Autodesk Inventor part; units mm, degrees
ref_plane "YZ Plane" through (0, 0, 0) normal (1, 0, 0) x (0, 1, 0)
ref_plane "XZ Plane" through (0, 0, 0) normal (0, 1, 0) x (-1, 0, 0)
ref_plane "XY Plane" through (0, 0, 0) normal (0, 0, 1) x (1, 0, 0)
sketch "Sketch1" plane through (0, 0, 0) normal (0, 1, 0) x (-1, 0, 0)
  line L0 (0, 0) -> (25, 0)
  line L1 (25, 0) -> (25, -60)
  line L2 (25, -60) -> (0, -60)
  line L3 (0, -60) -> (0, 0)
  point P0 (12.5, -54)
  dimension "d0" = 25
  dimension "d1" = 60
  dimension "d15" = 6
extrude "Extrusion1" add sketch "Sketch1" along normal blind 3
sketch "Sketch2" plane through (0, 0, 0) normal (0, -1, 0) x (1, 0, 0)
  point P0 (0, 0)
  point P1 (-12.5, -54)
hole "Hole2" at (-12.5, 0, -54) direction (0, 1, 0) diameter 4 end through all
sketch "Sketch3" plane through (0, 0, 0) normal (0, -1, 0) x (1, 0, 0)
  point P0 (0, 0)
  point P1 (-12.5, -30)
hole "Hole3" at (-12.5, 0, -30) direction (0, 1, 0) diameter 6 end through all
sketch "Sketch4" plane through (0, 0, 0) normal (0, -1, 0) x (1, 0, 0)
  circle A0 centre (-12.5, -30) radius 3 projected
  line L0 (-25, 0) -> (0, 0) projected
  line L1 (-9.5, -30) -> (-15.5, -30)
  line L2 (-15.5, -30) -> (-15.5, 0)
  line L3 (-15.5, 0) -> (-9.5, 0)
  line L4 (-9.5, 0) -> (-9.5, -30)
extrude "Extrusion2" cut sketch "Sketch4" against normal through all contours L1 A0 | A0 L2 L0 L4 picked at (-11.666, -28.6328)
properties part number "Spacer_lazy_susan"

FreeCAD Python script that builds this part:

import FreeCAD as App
import Part
import Sketcher
from FreeCAD import Vector

doc = App.newDocument("Part")
params = doc.addObject("Spreadsheet::Sheet", "Params")
for row, (alias, value) in enumerate([
    ("sketch1_width", "25 mm"),
    ("sketch1_height", "60 mm"),
    ("pad1_length", "3 mm"),
    ("sketch2_diameter", "4 mm"),
    ("hole_diameter", "4 mm"),
    ("sketch3_diameter", "6 mm"),
    ("hole2_diameter", "6 mm"),
    ("sketch4_width", "6 mm"),
    ("sketch4_height", "30 mm"),
], start=1):
    params.set(f"A{row}", alias)
    params.set(f"B{row}", "=" + value)
    params.setAlias(f"B{row}", alias)

body = doc.addObject("PartDesign::Body", "Body")

# Sketch on XZ plane
sketch1 = doc.addObject("Sketcher::SketchObject", "Sketch")
body.addObject(sketch1)
sketch1.AttachmentSupport = (doc.XZ_Plane, [""])
sketch1.MapMode = "FlatFace"
sketch1.addGeometry(Part.LineSegment(Vector(-25, 0, 0), Vector(0, 0, 0)), False)
sketch1.addGeometry(Part.LineSegment(Vector(0, 0, 0), Vector(0, -60, 0)), False)
sketch1.addGeometry(Part.LineSegment(Vector(0, -60, 0), Vector(-25, -60, 0)), False)
sketch1.addGeometry(Part.LineSegment(Vector(-25, -60, 0), Vector(-25, 0, 0)), False)
sketch1.addConstraint(Sketcher.Constraint("Coincident", 0, 2, 1, 1))
sketch1.addConstraint(Sketcher.Constraint("Coincident", 1, 2, 2, 1))
sketch1.addConstraint(Sketcher.Constraint("Coincident", 2, 2, 3, 1))
sketch1.addConstraint(Sketcher.Constraint("Coincident", 3, 2, 0, 1))
sketch1.addConstraint(Sketcher.Constraint("Horizontal", 0))
sketch1.addConstraint(Sketcher.Constraint("Vertical", 1))
sketch1.addConstraint(Sketcher.Constraint("Horizontal", 2))
sketch1.addConstraint(Sketcher.Constraint("Vertical", 3))
sketch1.addConstraint(Sketcher.Constraint("Coincident", 0, 2, -1, 1))
sketch1.addConstraint(Sketcher.Constraint("DistanceX", 0, 1, 0, 2, 25.0))
sketch1.addConstraint(Sketcher.Constraint("DistanceY", 1, 2, 1, 1, 60.0))
sketch1.setExpression("Constraints[9]", "Params.sketch1_width")
sketch1.setExpression("Constraints[10]", "Params.sketch1_height")
pad1 = doc.addObject("PartDesign::Pad", "Pad")
body.addObject(pad1)
pad1.Profile = sketch1
pad1.setExpression("Length", "Params.pad1_length")
pad1.Reversed = True

# Sketch on XZ plane
sketch2 = doc.addObject("Sketcher::SketchObject", "Sketch001")
body.addObject(sketch2)
sketch2.AttachmentSupport = (doc.XZ_Plane, [""])
sketch2.MapMode = "FlatFace"
sketch2.addGeometry(Part.Circle(Vector(-12.5, -54, 0), Vector(0, 0, 1), 2), False)
sketch2.addConstraint(Sketcher.Constraint("Diameter", 0, 4.0))
sketch2.addConstraint(Sketcher.Constraint("DistanceY", 0, 3, -1, 1, 54.0))
sketch2.addConstraint(Sketcher.Constraint("DistanceX", 0, 3, -1, 1, 12.5))
sketch2.setExpression("Constraints[0]", "Params.sketch2_diameter")
doc.recompute()
hole = doc.addObject("PartDesign::Hole", "Hole")
body.addObject(hole)
hole.Profile = sketch2
hole.ThreadType = "None"
hole.setExpression("Diameter", "Params.hole_diameter")
hole.DepthType = "ThroughAll"

# Sketch on XZ plane
sketch3 = doc.addObject("Sketcher::SketchObject", "Sketch002")
body.addObject(sketch3)
sketch3.AttachmentSupport = (doc.XZ_Plane, [""])
sketch3.MapMode = "FlatFace"
sketch3.addGeometry(Part.Circle(Vector(-12.5, -30, 0), Vector(0, 0, 1), 3), False)
sketch3.addConstraint(Sketcher.Constraint("Diameter", 0, 6.0))
sketch3.addConstraint(Sketcher.Constraint("DistanceY", 0, 3, -1, 1, 30.0))
sketch3.addConstraint(Sketcher.Constraint("DistanceX", 0, 3, -1, 1, 12.5))
sketch3.setExpression("Constraints[0]", "Params.sketch3_diameter")
doc.recompute()
hole2 = doc.addObject("PartDesign::Hole", "Hole001")
body.addObject(hole2)
hole2.Profile = sketch3
hole2.ThreadType = "None"
hole2.setExpression("Diameter", "Params.hole2_diameter")
hole2.DepthType = "ThroughAll"

# Sketch on XZ plane
sketch4 = doc.addObject("Sketcher::SketchObject", "Sketch003")
body.addObject(sketch4)
sketch4.AttachmentSupport = (doc.XZ_Plane, [""])
sketch4.MapMode = "FlatFace"
sketch4.addGeometry(Part.LineSegment(Vector(-16, -30, 0), Vector(-10, -30, 0)), False)
sketch4.addGeometry(Part.LineSegment(Vector(-10, -30, 0), Vector(-10, 0, 0)), False)
sketch4.addGeometry(Part.LineSegment(Vector(-10, 0, 0), Vector(-16, 0, 0)), False)
sketch4.addGeometry(Part.LineSegment(Vector(-16, 0, 0), Vector(-16, -30, 0)), False)
sketch4.addConstraint(Sketcher.Constraint("Coincident", 0, 2, 1, 1))
sketch4.addConstraint(Sketcher.Constraint("Coincident", 1, 2, 2, 1))
sketch4.addConstraint(Sketcher.Constraint("Coincident", 2, 2, 3, 1))
sketch4.addConstraint(Sketcher.Constraint("Coincident", 3, 2, 0, 1))
sketch4.addConstraint(Sketcher.Constraint("Horizontal", 0))
sketch4.addConstraint(Sketcher.Constraint("Vertical", 1))
sketch4.addConstraint(Sketcher.Constraint("Horizontal", 2))
sketch4.addConstraint(Sketcher.Constraint("Vertical", 3))
sketch4.addConstraint(Sketcher.Constraint("PointOnObject", 1, 2, -1))
sketch4.addConstraint(Sketcher.Constraint("DistanceX", 0, 1, 0, 2, 6.0))
sketch4.addConstraint(Sketcher.Constraint("DistanceY", 1, 1, 1, 2, 30.0))
sketch4.addConstraint(Sketcher.Constraint("DistanceX", 0, 2, -1, 1, 9.5))
sketch4.setExpression("Constraints[9]", "Params.sketch4_width")
sketch4.setExpression("Constraints[10]", "Params.sketch4_height")
pocket1 = doc.addObject("PartDesign::Pocket", "Pocket")
body.addObject(pocket1)
pocket1.Profile = sketch4
pocket1.Type = "ThroughAll"

doc.recompute()
